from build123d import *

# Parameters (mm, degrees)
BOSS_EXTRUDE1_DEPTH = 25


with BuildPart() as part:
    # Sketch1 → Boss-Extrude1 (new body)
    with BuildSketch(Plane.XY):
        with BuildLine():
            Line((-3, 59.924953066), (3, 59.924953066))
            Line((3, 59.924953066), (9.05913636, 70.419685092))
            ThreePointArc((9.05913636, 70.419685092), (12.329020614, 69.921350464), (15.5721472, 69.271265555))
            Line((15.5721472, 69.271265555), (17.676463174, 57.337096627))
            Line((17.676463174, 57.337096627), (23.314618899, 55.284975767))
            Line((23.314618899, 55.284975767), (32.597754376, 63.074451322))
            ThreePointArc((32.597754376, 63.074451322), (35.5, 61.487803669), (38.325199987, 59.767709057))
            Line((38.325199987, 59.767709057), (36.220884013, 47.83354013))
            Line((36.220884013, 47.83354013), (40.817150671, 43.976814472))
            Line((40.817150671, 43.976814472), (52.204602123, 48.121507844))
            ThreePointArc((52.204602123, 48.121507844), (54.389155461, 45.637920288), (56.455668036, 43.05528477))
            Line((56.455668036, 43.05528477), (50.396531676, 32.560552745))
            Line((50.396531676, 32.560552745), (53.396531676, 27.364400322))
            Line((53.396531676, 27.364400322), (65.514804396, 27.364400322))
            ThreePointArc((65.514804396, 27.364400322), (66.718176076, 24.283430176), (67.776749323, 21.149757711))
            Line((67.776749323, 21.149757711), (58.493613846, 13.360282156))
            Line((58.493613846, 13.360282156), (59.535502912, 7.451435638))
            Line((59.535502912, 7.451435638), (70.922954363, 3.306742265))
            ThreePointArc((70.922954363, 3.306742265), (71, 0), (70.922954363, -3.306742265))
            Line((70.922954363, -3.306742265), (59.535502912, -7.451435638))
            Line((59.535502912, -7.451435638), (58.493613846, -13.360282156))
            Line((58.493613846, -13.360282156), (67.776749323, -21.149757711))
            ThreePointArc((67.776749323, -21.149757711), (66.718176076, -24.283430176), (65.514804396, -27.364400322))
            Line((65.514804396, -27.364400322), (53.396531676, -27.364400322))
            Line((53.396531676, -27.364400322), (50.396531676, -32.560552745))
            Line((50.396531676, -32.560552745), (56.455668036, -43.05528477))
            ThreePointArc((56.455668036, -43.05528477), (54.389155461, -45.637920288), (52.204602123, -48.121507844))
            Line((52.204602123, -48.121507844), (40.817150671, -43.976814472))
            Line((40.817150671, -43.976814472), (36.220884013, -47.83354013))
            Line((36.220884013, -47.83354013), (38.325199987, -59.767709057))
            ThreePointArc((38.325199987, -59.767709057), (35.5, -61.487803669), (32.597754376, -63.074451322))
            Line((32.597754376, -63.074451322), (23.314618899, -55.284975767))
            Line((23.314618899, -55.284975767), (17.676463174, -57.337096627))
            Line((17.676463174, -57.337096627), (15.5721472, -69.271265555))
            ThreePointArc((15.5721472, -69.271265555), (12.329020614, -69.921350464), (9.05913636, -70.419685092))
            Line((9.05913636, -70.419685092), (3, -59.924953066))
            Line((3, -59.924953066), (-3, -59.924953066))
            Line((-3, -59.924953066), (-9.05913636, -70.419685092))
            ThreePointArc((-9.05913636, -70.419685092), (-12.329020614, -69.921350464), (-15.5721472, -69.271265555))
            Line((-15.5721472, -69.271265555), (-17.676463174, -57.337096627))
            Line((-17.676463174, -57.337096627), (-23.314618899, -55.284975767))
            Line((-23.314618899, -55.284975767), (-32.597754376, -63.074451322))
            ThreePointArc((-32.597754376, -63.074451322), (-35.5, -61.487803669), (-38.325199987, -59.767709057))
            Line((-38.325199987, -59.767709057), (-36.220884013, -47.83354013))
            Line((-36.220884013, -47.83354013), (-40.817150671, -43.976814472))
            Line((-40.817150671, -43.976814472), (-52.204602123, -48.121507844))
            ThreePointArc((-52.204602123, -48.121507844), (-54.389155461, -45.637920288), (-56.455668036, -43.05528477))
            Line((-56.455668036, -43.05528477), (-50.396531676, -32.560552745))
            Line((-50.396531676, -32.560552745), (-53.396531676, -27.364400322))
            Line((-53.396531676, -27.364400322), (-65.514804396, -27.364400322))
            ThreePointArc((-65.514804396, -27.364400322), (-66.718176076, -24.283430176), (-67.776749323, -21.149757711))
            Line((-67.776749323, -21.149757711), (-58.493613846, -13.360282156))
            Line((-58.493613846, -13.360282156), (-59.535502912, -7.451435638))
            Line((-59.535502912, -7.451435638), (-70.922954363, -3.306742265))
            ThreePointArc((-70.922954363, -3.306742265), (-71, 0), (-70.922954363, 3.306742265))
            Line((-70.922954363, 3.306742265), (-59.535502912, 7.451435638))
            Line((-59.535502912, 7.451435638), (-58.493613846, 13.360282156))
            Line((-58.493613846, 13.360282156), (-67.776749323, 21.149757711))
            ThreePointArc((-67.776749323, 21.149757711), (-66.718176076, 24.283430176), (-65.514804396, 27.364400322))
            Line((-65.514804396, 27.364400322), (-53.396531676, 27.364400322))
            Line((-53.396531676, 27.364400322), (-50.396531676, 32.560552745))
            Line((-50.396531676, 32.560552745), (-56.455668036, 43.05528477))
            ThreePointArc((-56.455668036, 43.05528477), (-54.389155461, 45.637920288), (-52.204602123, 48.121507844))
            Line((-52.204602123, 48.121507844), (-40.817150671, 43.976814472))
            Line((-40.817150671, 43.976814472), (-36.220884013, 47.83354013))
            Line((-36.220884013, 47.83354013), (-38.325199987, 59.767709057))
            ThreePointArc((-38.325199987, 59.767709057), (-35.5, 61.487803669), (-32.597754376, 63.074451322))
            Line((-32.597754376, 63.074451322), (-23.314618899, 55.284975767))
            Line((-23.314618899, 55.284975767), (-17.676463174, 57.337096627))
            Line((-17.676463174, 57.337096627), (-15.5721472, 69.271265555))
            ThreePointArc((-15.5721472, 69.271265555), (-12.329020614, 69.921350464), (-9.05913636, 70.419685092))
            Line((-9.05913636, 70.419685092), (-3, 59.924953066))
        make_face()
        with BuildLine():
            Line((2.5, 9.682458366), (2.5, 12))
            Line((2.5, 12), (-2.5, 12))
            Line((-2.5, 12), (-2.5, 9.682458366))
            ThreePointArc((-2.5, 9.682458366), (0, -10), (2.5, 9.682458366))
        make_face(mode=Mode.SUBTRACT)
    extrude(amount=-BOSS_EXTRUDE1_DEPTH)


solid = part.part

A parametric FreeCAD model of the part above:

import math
import FreeCAD as App
import Part
import Sketcher
from FreeCAD import Vector
Q = App.Units.Quantity

doc = App.newDocument("Part")
body = doc.addObject("PartDesign::Body", "Body")

sketch1 = body.newObject("Sketcher::SketchObject", "Sketch")
sketch1.AttachmentSupport = (doc.getObject("XY_Plane"), [""])
sketch1.MapMode = "FlatFace"
sketch1.addGeometry([
    Part.LineSegment(Vector(3, 59.924953, 0), Vector(-3, 59.924953, 0)),
    Part.LineSegment(Vector(-3, 59.924953, 0), Vector(-9.059136, 70.419685, 0)),
    Part.ArcOfCircle(Part.Circle(Vector(0, 0, 0), Vector(0, 0, 1), 71), math.radians(97.33055), math.radians(102.66945)),
    Part.LineSegment(Vector(-15.572147, 69.271266, 0), Vector(-17.676463, 57.337097, 0)),
    Part.LineSegment(Vector(-17.676463, 57.337097, 0), Vector(-23.314619, 55.284976, 0)),
    Part.LineSegment(Vector(-23.314619, 55.284976, 0), Vector(-32.597754, 63.074451, 0)),
    Part.ArcOfCircle(Part.Circle(Vector(0, 0.000001, 0), Vector(0, 0, 1), 70.999999), math.radians(117.33055), math.radians(122.66945)),
    Part.LineSegment(Vector(-38.3252, 59.767709, 0), Vector(-36.220884, 47.83354, 0)),
    Part.LineSegment(Vector(-36.220884, 47.83354, 0), Vector(-40.817151, 43.976814, 0)),
    Part.LineSegment(Vector(-40.817151, 43.976814, 0), Vector(-52.204602, 48.121508, 0)),
    Part.ArcOfCircle(Part.Circle(Vector(0, 0, 0), Vector(0, 0, 1), 71), math.radians(137.33055), math.radians(142.66945)),
    Part.LineSegment(Vector(-56.455668, 43.055285, 0), Vector(-50.396532, 32.560553, 0)),
    Part.LineSegment(Vector(-50.396532, 32.560553, 0), Vector(-53.396532, 27.3644, 0)),
    Part.LineSegment(Vector(-53.396532, 27.3644, 0), Vector(-65.514804, 27.3644, 0)),
    Part.ArcOfCircle(Part.Circle(Vector(0, 0, 0), Vector(0, 0, 1), 71), math.radians(157.33055), math.radians(162.66945)),
    Part.LineSegment(Vector(-67.776749, 21.149758, 0), Vector(-58.493614, 13.360282, 0)),
    Part.LineSegment(Vector(-58.493614, 13.360282, 0), Vector(-59.535503, 7.451436, 0)),
    Part.LineSegment(Vector(-59.535503, 7.451436, 0), Vector(-70.922954, 3.306742, 0)),
    Part.ArcOfCircle(Part.Circle(Vector(0, 0, 0), Vector(0, 0, 1), 71), math.radians(177.33055), math.radians(182.66945)),
    Part.LineSegment(Vector(-70.922954, -3.306742, 0), Vector(-59.535503, -7.451436, 0)),
    Part.LineSegment(Vector(-59.535503, -7.451436, 0), Vector(-58.493614, -13.360282, 0)),
    Part.LineSegment(Vector(-58.493614, -13.360282, 0), Vector(-67.776749, -21.149758, 0)),
    Part.ArcOfCircle(Part.Circle(Vector(0, 0, 0), Vector(0, 0, 1), 71), math.radians(-162.66945), math.radians(-157.33055)),
    Part.LineSegment(Vector(-65.514804, -27.3644, 0), Vector(-53.396532, -27.3644, 0)),
    Part.LineSegment(Vector(-53.396532, -27.3644, 0), Vector(-50.396532, -32.560553, 0)),
    Part.LineSegment(Vector(-50.396532, -32.560553, 0), Vector(-56.455668, -43.055285, 0)),
    Part.ArcOfCircle(Part.Circle(Vector(0, 0, 0), Vector(0, 0, 1), 71), math.radians(-142.66945), math.radians(-137.33055)),
    Part.LineSegment(Vector(-52.204602, -48.121508, 0), Vector(-40.817151, -43.976814, 0)),
    Part.LineSegment(Vector(-40.817151, -43.976814, 0), Vector(-36.220884, -47.83354, 0)),
    Part.LineSegment(Vector(-36.220884, -47.83354, 0), Vector(-38.3252, -59.767709, 0)),
    Part.ArcOfCircle(Part.Circle(Vector(0, -0.000001, 0), Vector(0, 0, 1), 70.999999), math.radians(-122.66945), math.radians(-117.33055)),
    Part.LineSegment(Vector(-32.597754, -63.074451, 0), Vector(-23.314619, -55.284976, 0)),
    Part.LineSegment(Vector(-23.314619, -55.284976, 0), Vector(-17.676463, -57.337097, 0)),
    Part.LineSegment(Vector(-17.676463, -57.337097, 0), Vector(-15.572147, -69.271266, 0)),
    Part.ArcOfCircle(Part.Circle(Vector(0, 0, 0), Vector(0, 0, 1), 71), math.radians(-102.66945), math.radians(-97.33055)),
    Part.LineSegment(Vector(-9.059136, -70.419685, 0), Vector(-3, -59.924953, 0)),
    Part.LineSegment(Vector(-3, -59.924953, 0), Vector(3, -59.924953, 0)),
    Part.LineSegment(Vector(3, -59.924953, 0), Vector(9.059136, -70.419685, 0)),
    Part.ArcOfCircle(Part.Circle(Vector(0, 0, 0), Vector(0, 0, 1), 71), math.radians(-82.66945), math.radians(-77.33055)),
    Part.LineSegment(Vector(15.572147, -69.271266, 0), Vector(17.676463, -57.337097, 0)),
    Part.LineSegment(Vector(17.676463, -57.337097, 0), Vector(23.314619, -55.284976, 0)),
    Part.LineSegment(Vector(23.314619, -55.284976, 0), Vector(32.597754, -63.074451, 0)),
    Part.ArcOfCircle(Part.Circle(Vector(0, -0.000001, 0), Vector(0, 0, 1), 70.999999), math.radians(-62.66945), math.radians(-57.33055)),
    Part.LineSegment(Vector(38.3252, -59.767709, 0), Vector(36.220884, -47.83354, 0)),
    Part.LineSegment(Vector(36.220884, -47.83354, 0), Vector(40.817151, -43.976814, 0)),
    Part.LineSegment(Vector(40.817151, -43.976814, 0), Vector(52.204602, -48.121508, 0)),
    Part.ArcOfCircle(Part.Circle(Vector(0, 0, 0), Vector(0, 0, 1), 71), math.radians(-42.66945), math.radians(-37.33055)),
    Part.LineSegment(Vector(56.455668, -43.055285, 0), Vector(50.396532, -32.560553, 0)),
    Part.LineSegment(Vector(50.396532, -32.560553, 0), Vector(53.396532, -27.3644, 0)),
    Part.LineSegment(Vector(53.396532, -27.3644, 0), Vector(65.514804, -27.3644, 0)),
    Part.ArcOfCircle(Part.Circle(Vector(0, 0, 0), Vector(0, 0, 1), 71), math.radians(-22.66945), math.radians(-17.33055)),
    Part.LineSegment(Vector(67.776749, -21.149758, 0), Vector(58.493614, -13.360282, 0)),
    Part.LineSegment(Vector(58.493614, -13.360282, 0), Vector(59.535503, -7.451436, 0)),
    Part.LineSegment(Vector(59.535503, -7.451436, 0), Vector(70.922954, -3.306742, 0)),
    Part.ArcOfCircle(Part.Circle(Vector(0, 0, 0), Vector(0, 0, 1), 71), math.radians(-2.66945), math.radians(2.66945)),
    Part.LineSegment(Vector(70.922954, 3.306742, 0), Vector(59.535503, 7.451436, 0)),
    Part.LineSegment(Vector(59.535503, 7.451436, 0), Vector(58.493614, 13.360282, 0)),
    Part.LineSegment(Vector(58.493614, 13.360282, 0), Vector(67.776749, 21.149758, 0)),
    Part.ArcOfCircle(Part.Circle(Vector(0, 0, 0), Vector(0, 0, 1), 71), math.radians(17.33055), math.radians(22.66945)),
    Part.LineSegment(Vector(65.514804, 27.3644, 0), Vector(53.396532, 27.3644, 0)),
    Part.LineSegment(Vector(53.396532, 27.3644, 0), Vector(50.396532, 32.560553, 0)),
    Part.LineSegment(Vector(50.396532, 32.560553, 0), Vector(56.455668, 43.055285, 0)),
    Part.ArcOfCircle(Part.Circle(Vector(0, 0, 0), Vector(0, 0, 1), 71), math.radians(37.33055), math.radians(42.66945)),
    Part.LineSegment(Vector(52.204602, 48.121508, 0), Vector(40.817151, 43.976814, 0)),
    Part.LineSegment(Vector(40.817151, 43.976814, 0), Vector(36.220884, 47.83354, 0)),
    Part.LineSegment(Vector(36.220884, 47.83354, 0), Vector(38.3252, 59.767709, 0)),
    Part.ArcOfCircle(Part.Circle(Vector(0, 0.000001, 0), Vector(0, 0, 1), 70.999999), math.radians(57.33055), math.radians(62.66945)),
    Part.LineSegment(Vector(32.597754, 63.074451, 0), Vector(23.314619, 55.284976, 0)),
    Part.LineSegment(Vector(23.314619, 55.284976, 0), Vector(17.676463, 57.337097, 0)),
    Part.LineSegment(Vector(17.676463, 57.337097, 0), Vector(15.572147, 69.271266, 0)),
    Part.ArcOfCircle(Part.Circle(Vector(0, 0, 0), Vector(0, 0, 1), 71), math.radians(77.33055), math.radians(82.66945)),
    Part.LineSegment(Vector(9.059136, 70.419685, 0), Vector(3, 59.924953, 0)),
    Part.ArcOfCircle(Part.Circle(Vector(0, 0, 0), Vector(0, 0, 1), 10), math.radians(104.477512), math.radians(435.522488)),
    Part.LineSegment(Vector(-2.5, 9.682458, 0), Vector(-2.5, 12, 0)),
    Part.LineSegment(Vector(-2.5, 12, 0), Vector(2.5, 12, 0)),
    Part.LineSegment(Vector(2.5, 12, 0), Vector(2.5, 9.682458, 0)),
], False)
sketch1.addConstraint([
    Sketcher.Constraint("Coincident", 0, 2, 1, 1),
    Sketcher.Constraint("Coincident", 1, 2, 2, 1),
    Sketcher.Constraint("Coincident", 2, 2, 3, 1),
    Sketcher.Constraint("Coincident", 3, 2, 4, 1),
    Sketcher.Constraint("Coincident", 4, 2, 5, 1),
    Sketcher.Constraint("Coincident", 5, 2, 6, 1),
    Sketcher.Constraint("Coincident", 6, 2, 7, 1),
    Sketcher.Constraint("Coincident", 7, 2, 8, 1),
    Sketcher.Constraint("Coincident", 8, 2, 9, 1),
    Sketcher.Constraint("Coincident", 9, 2, 10, 1),
    Sketcher.Constraint("Coincident", 10, 2, 11, 1),
    Sketcher.Constraint("Coincident", 11, 2, 12, 1),
    Sketcher.Constraint("Coincident", 12, 2, 13, 1),
    Sketcher.Constraint("Coincident", 13, 2, 14, 1),
    Sketcher.Constraint("Coincident", 14, 2, 15, 1),
    Sketcher.Constraint("Coincident", 15, 2, 16, 1),
    Sketcher.Constraint("Coincident", 16, 2, 17, 1),
    Sketcher.Constraint("Coincident", 17, 2, 18, 1),
    Sketcher.Constraint("Coincident", 18, 2, 19, 1),
    Sketcher.Constraint("Coincident", 19, 2, 20, 1),
    Sketcher.Constraint("Coincident", 20, 2, 21, 1),
    Sketcher.Constraint("Coincident", 21, 2, 22, 1),
    Sketcher.Constraint("Coincident", 22, 2, 23, 1),
    Sketcher.Constraint("Coincident", 23, 2, 24, 1),
    Sketcher.Constraint("Coincident", 24, 2, 25, 1),
    Sketcher.Constraint("Coincident", 25, 2, 26, 1),
    Sketcher.Constraint("Coincident", 26, 2, 27, 1),
    Sketcher.Constraint("Coincident", 27, 2, 28, 1),
    Sketcher.Constraint("Coincident", 28, 2, 29, 1),
    Sketcher.Constraint("Coincident", 29, 2, 30, 1),
    Sketcher.Constraint("Coincident", 30, 2, 31, 1),
    Sketcher.Constraint("Coincident", 31, 2, 32, 1),
    Sketcher.Constraint("Coincident", 32, 2, 33, 1),
    Sketcher.Constraint("Coincident", 33, 2, 34, 1),
    Sketcher.Constraint("Coincident", 34, 2, 35, 1),
    Sketcher.Constraint("Coincident", 35, 2, 36, 1),
    Sketcher.Constraint("Coincident", 36, 2, 37, 1),
    Sketcher.Constraint("Coincident", 37, 2, 38, 1),
    Sketcher.Constraint("Coincident", 38, 2, 39, 1),
    Sketcher.Constraint("Coincident", 39, 2, 40, 1),
    Sketcher.Constraint("Coincident", 40, 2, 41, 1),
    Sketcher.Constraint("Coincident", 41, 2, 42, 1),
    Sketcher.Constraint("Coincident", 42, 2, 43, 1),
    Sketcher.Constraint("Coincident", 43, 2, 44, 1),
    Sketcher.Constraint("Coincident", 44, 2, 45, 1),
    Sketcher.Constraint("Coincident", 45, 2, 46, 1),
    Sketcher.Constraint("Coincident", 46, 2, 47, 1),
    Sketcher.Constraint("Coincident", 47, 2, 48, 1),
    Sketcher.Constraint("Coincident", 48, 2, 49, 1),
    Sketcher.Constraint("Coincident", 49, 2, 50, 1),
    Sketcher.Constraint("Coincident", 50, 2, 51, 1),
    Sketcher.Constraint("Coincident", 51, 2, 52, 1),
    Sketcher.Constraint("Coincident", 52, 2, 53, 1),
    Sketcher.Constraint("Coincident", 53, 2, 54, 1),
    Sketcher.Constraint("Coincident", 54, 2, 55, 1),
    Sketcher.Constraint("Coincident", 55, 2, 56, 1),
    Sketcher.Constraint("Coincident", 56, 2, 57, 1),
    Sketcher.Constraint("Coincident", 57, 2, 58, 1),
    Sketcher.Constraint("Coincident", 58, 2, 59, 1),
    Sketcher.Constraint("Coincident", 59, 2, 60, 1),
    Sketcher.Constraint("Coincident", 60, 2, 61, 1),
    Sketcher.Constraint("Coincident", 61, 2, 62, 1),
    Sketcher.Constraint("Coincident", 62, 2, 63, 1),
    Sketcher.Constraint("Coincident", 63, 2, 64, 1),
    Sketcher.Constraint("Coincident", 64, 2, 65, 1),
    Sketcher.Constraint("Coincident", 65, 2, 66, 1),
    Sketcher.Constraint("Coincident", 66, 2, 67, 1),
    Sketcher.Constraint("Coincident", 67, 2, 68, 1),
    Sketcher.Constraint("Coincident", 68, 2, 69, 1),
    Sketcher.Constraint("Coincident", 69, 2, 70, 1),
    Sketcher.Constraint("Coincident", 70, 2, 71, 1),
    Sketcher.Constraint("Coincident", 71, 2, 0, 1),
    Sketcher.Constraint("Coincident", 72, 1, 73, 1),
    Sketcher.Constraint("Coincident", 73, 2, 74, 1),
    Sketcher.Constraint("Coincident", 74, 2, 75, 1),
    Sketcher.Constraint("Coincident", 75, 2, 72, 2),
    Sketcher.Constraint("Horizontal", 0),
    Sketcher.Constraint("Horizontal", 13),
    Sketcher.Constraint("Horizontal", 23),
    Sketcher.Constraint("Horizontal", 36),
    Sketcher.Constraint("Horizontal", 49),
    Sketcher.Constraint("Horizontal", 59),
    Sketcher.Constraint("Vertical", 73),
    Sketcher.Constraint("Horizontal", 74),
    Sketcher.Constraint("Vertical", 75),
    Sketcher.Constraint("Coincident", 2, 3, -1, 1),
    Sketcher.Constraint("Coincident", 6, 3, -1, 1),
    Sketcher.Constraint("Coincident", 10, 3, -1, 1),
    Sketcher.Constraint("Coincident", 14, 3, -1, 1),
    Sketcher.Constraint("Coincident", 18, 3, -1, 1),
    Sketcher.Constraint("Coincident", 22, 3, -1, 1),
    Sketcher.Constraint("Coincident", 26, 3, -1, 1),
    Sketcher.Constraint("Coincident", 30, 3, -1, 1),
    Sketcher.Constraint("Coincident", 34, 3, -1, 1),
    Sketcher.Constraint("Coincident", 38, 3, -1, 1),
    Sketcher.Constraint("Coincident", 42, 3, -1, 1),
    Sketcher.Constraint("Coincident", 46, 3, -1, 1),
    Sketcher.Constraint("Coincident", 50, 3, -1, 1),
    Sketcher.Constraint("Coincident", 54, 3, -1, 1),
    Sketcher.Constraint("Coincident", 58, 3, -1, 1),
    Sketcher.Constraint("Coincident", 62, 3, -1, 1),
    Sketcher.Constraint("Coincident", 66, 3, -1, 1),
    Sketcher.Constraint("Coincident", 70, 3, -1, 1),
    Sketcher.Constraint("Coincident", 72, 3, -1, 1),
    Sketcher.Constraint("Equal", 2, 6),
    Sketcher.Constraint("Equal", 6, 10),
    Sketcher.Constraint("Equal", 10, 14),
    Sketcher.Constraint("Equal", 14, 18),
    Sketcher.Constraint("Equal", 18, 22),
    Sketcher.Constraint("Equal", 22, 26),
    Sketcher.Constraint("Equal", 26, 30),
    Sketcher.Constraint("Equal", 30, 34),
    Sketcher.Constraint("Equal", 34, 38),
    Sketcher.Constraint("Equal", 38, 42),
    Sketcher.Constraint("Equal", 42, 46),
    Sketcher.Constraint("Equal", 46, 50),
    Sketcher.Constraint("Equal", 50, 54),
    Sketcher.Constraint("Equal", 54, 58),
    Sketcher.Constraint("Equal", 58, 62),
    Sketcher.Constraint("Equal", 62, 66),
    Sketcher.Constraint("Equal", 66, 70),
    Sketcher.Constraint("Symmetric", 0, 2, 36, 2, -1, 1),
    Sketcher.Constraint("Symmetric", 3, 2, 39, 2, -1, 1),
    Sketcher.Constraint("Symmetric", 4, 2, 40, 2, -1, 1),
    Sketcher.Constraint("Symmetric", 7, 2, 43, 2, -1, 1),
    Sketcher.Constraint("Symmetric", 8, 2, 44, 2, -1, 1),
    Sketcher.Constraint("Symmetric", 11, 2, 47, 2, -1, 1),
    Sketcher.Constraint("Symmetric", 12, 2, 48, 2, -1, 1),
    Sketcher.Constraint("Symmetric", 15, 2, 51, 2, -1, 1),
    Sketcher.Constraint("Symmetric", 16, 2, 52, 2, -1, 1),
    Sketcher.Constraint("Symmetric", 19, 2, 55, 2, -1, 1),
    Sketcher.Constraint("Symmetric", 20, 2, 56, 2, -1, 1),
    Sketcher.Constraint("Symmetric", 23, 2, 59, 2, -1, 1),
    Sketcher.Constraint("Symmetric", 24, 2, 60, 2, -1, 1),
    Sketcher.Constraint("Symmetric", 27, 2, 63, 2, -1, 1),
    Sketcher.Constraint("Symmetric", 28, 2, 64, 2, -1, 1),
    Sketcher.Constraint("Symmetric", 31, 2, 67, 2, -1, 1),
    Sketcher.Constraint("Symmetric", 32, 2, 68, 2, -1, 1),
    Sketcher.Constraint("Symmetric", 32, 2, 39, 2, -2),
    Sketcher.Constraint("Symmetric", 31, 2, 40, 2, -2),
    Sketcher.Constraint("Symmetric", 28, 2, 43, 2, -2),
    Sketcher.Constraint("Symmetric", 27, 2, 44, 2, -2),
    Sketcher.Constraint("Symmetric", 24, 2, 47, 2, -2),
    Sketcher.Constraint("Symmetric", 23, 2, 48, 2, -2),
    Sketcher.Constraint("Symmetric", 20, 2, 51, 2, -2),
    Sketcher.Constraint("Symmetric", 19, 2, 52, 2, -2),
    Sketcher.Constraint("Parallel", 1, 11),
    Sketcher.Constraint("Parallel", 5, 15),
    Sketcher.Constraint("Parallel", 3, 16),
    Sketcher.Constraint("Parallel", 4, 17),
    Sketcher.Constraint("Parallel", 9, 19),
    Sketcher.Constraint("Parallel", 7, 20),
    Sketcher.Constraint("Parallel", 8, 21),
    Sketcher.Constraint("Parallel", 11, 24),
    Sketcher.Constraint("Parallel", 12, 25),
    Sketcher.Constraint("Parallel", 17, 27),
    Sketcher.Constraint("Parallel", 15, 28),
    Sketcher.Constraint("Parallel", 16, 29),
    Sketcher.Constraint("Parallel", 21, 31),
    Sketcher.Constraint("Parallel", 19, 32),
    Sketcher.Constraint("Parallel", 20, 33),
    Sketcher.Constraint("Parallel", 25, 35),
    Sketcher.Constraint("Parallel", 24, 37),
    Sketcher.Constraint("Parallel", 29, 39),
    Sketcher.Constraint("Parallel", 28, 41),
    Sketcher.Constraint("Parallel", 33, 43),
    Sketcher.Constraint("Parallel", 32, 45),
    Sketcher.Constraint("Parallel", 37, 47),
    Sketcher.Constraint("Parallel", 41, 51),
    Sketcher.Constraint("Parallel", 40, 53),
    Sketcher.Constraint("Parallel", 45, 55),
    Sketcher.Constraint("Parallel", 44, 57),
    Sketcher.Constraint("Parallel", 48, 61),
    Sketcher.Constraint("Parallel", 53, 63),
    Sketcher.Constraint("Parallel", 52, 65),
    Sketcher.Constraint("Parallel", 57, 67),
    Sketcher.Constraint("Parallel", 56, 69),
    Sketcher.Constraint("Parallel", 61, 71),
    Sketcher.Constraint("Horizontal", 34, 2, 37, 2),
    Sketcher.Constraint("Horizontal", 1, 2, 70, 2),
    Sketcher.Constraint("Horizontal", 72, 1, 75, 2),
    Sketcher.Constraint("Equal", 1, 3),
    Sketcher.Constraint("Equal", 3, 5),
    Sketcher.Constraint("Equal", 5, 7),
    Sketcher.Constraint("Equal", 4, 8),
    Sketcher.Constraint("Equal", 7, 9),
    Sketcher.Constraint("Equal", 9, 11),
    Sketcher.Constraint("Equal", 8, 12),
    Sketcher.Constraint("Equal", 11, 15),
    Sketcher.Constraint("Equal", 12, 16),
    Sketcher.Constraint("Equal", 15, 17),
    Sketcher.Constraint("Radius", 2, Q("71 mm")),
    Sketcher.Constraint("Radius", 72, Q("10 mm")),
    Sketcher.Constraint("DistanceX", 0, 2, 0, 1, Q("6 mm")),
    Sketcher.Constraint("DistanceX", 74, 1, 74, 2, Q("5 mm")),
    Sketcher.Constraint("Angle", 1, Q("120 deg")),
    Sketcher.Constraint("Angle", 3, Q("-100 deg")),
    Sketcher.Constraint("Angle", 4, Q("-160 deg")),
    Sketcher.Constraint("Angle", 5, Q("140 deg")),
    Sketcher.Constraint("Distance", 4, Q("6 mm")),
    Sketcher.Constraint("DistanceY", -1, 1, 73, 2, Q("12 mm")),
    Sketcher.Constraint("DistanceY", -1, 1, 12, 2, Q("27.3644 mm")),
    Sketcher.Constraint("DistanceX", 29, 2, -1, 1, Q("38.3252 mm")),
])
pad1 = body.newObject("PartDesign::Pad", "Pad")
pad1.Profile = sketch1
pad1.Length = 25
pad1.Reversed = True

doc.recompute()
